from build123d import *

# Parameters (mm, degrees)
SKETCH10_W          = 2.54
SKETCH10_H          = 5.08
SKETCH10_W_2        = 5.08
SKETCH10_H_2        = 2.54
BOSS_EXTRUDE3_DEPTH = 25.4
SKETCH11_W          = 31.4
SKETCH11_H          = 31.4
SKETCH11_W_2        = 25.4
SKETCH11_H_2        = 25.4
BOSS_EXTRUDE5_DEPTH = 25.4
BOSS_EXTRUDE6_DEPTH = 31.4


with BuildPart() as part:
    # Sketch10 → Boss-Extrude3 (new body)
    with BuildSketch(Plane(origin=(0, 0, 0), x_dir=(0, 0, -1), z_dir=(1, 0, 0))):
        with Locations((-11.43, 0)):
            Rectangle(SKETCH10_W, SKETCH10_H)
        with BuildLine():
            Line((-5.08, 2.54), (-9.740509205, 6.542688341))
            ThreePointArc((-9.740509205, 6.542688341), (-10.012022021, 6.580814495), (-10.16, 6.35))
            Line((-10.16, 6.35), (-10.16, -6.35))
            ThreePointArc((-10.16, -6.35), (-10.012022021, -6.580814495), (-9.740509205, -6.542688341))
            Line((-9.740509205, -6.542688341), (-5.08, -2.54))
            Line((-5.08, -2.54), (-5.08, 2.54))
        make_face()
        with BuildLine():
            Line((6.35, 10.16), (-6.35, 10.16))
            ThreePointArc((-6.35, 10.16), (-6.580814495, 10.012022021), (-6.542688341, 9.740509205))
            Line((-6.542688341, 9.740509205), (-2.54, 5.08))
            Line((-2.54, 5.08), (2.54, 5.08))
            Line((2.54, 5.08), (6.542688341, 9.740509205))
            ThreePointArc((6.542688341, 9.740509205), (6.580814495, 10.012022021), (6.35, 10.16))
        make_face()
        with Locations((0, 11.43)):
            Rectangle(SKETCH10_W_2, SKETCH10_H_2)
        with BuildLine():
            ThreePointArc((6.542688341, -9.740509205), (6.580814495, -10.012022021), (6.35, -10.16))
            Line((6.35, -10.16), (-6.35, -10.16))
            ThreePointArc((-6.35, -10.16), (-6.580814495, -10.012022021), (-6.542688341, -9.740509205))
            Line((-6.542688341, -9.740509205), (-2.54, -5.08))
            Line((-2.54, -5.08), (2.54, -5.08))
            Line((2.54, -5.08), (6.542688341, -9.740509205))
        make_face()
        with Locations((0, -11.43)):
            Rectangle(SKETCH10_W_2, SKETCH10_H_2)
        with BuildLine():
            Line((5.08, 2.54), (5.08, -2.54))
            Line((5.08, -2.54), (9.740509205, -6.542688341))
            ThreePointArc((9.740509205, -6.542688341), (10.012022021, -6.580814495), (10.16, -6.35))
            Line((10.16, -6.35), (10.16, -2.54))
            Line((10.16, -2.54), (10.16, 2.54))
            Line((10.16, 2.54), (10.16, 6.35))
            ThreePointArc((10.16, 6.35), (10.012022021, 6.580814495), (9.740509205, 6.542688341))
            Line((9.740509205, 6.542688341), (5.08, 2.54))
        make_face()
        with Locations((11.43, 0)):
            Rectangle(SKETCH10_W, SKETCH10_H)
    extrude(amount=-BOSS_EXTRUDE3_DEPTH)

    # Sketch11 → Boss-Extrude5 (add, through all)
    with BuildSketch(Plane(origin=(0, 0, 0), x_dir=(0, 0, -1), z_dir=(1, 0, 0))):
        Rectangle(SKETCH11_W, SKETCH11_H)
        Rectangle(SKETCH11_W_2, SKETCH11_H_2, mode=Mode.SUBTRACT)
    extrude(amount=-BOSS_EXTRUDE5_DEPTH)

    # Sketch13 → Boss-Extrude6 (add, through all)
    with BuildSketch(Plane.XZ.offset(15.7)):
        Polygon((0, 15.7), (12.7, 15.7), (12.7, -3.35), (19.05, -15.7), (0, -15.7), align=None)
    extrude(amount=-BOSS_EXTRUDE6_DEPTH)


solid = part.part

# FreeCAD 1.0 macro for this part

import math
import FreeCAD as App
import Part
import Sketcher
from FreeCAD import Vector
Q = App.Units.Quantity


def add_polygon(sketch, points):
    """Adds a closed chain of lines whose ends are joined by coincident constraints."""
    first, n = sketch.GeometryCount, len(points)
    for a, b in zip(points, points[1:] + points[:1]):
        sketch.addGeometry(Part.LineSegment(App.Vector(*a, 0), App.Vector(*b, 0)), False)
    for i in range(n):
        sketch.addConstraint(Sketcher.Constraint("Coincident", first + i, 2, first + (i + 1) % n, 1))

doc = App.newDocument("Part")
body = doc.addObject("PartDesign::Body", "Body")
body.AllowCompound = True

sketch1 = body.newObject("Sketcher::SketchObject", "Sketch")
sketch1.AttachmentSupport = (doc.getObject("YZ_Plane"), [""])
sketch1.MapMode = "FlatFace"
sketch1.addGeometry(Part.LineSegment(Vector(2.54, 12.7, 0), Vector(-2.54, 12.7, 0)), False)
sketch1.addGeometry(Part.LineSegment(Vector(-2.54, 12.7, 0), Vector(-2.54, 10.16, 0)), False)
sketch1.addGeometry(Part.LineSegment(Vector(-2.54, 10.16, 0), Vector(-6.35, 10.16, 0)), False)
sketch1.addGeometry(Part.ArcOfCircle(Part.Circle(Vector(-6.35, 9.906, 0), Vector(0, 0, 1), 0.254), math.radians(90), math.radians(220.657704)), False)
sketch1.addGeometry(Part.LineSegment(Vector(-6.542688, 9.740509, 0), Vector(-2.54, 5.08, 0)), False)
sketch1.addGeometry(Part.LineSegment(Vector(-2.54, 5.08, 0), Vector(2.54, 5.08, 0)), False)
sketch1.addGeometry(Part.LineSegment(Vector(2.54, 5.08, 0), Vector(6.542688, 9.740509, 0)), False)
sketch1.addGeometry(Part.ArcOfCircle(Part.Circle(Vector(6.35, 9.906, 0), Vector(0, 0, 1), 0.254), math.radians(-40.657704), math.radians(90)), False)
sketch1.addGeometry(Part.LineSegment(Vector(6.35, 10.16, 0), Vector(2.54, 10.16, 0)), False)
sketch1.addGeometry(Part.LineSegment(Vector(2.54, 10.16, 0), Vector(2.54, 12.7, 0)), False)
sketch1.addGeometry(Part.LineSegment(Vector(10.16, -6.35, 0), Vector(10.16, -2.54, 0)), False)
sketch1.addGeometry(Part.LineSegment(Vector(10.16, -2.54, 0), Vector(12.7, -2.54, 0)), False)
sketch1.addGeometry(Part.LineSegment(Vector(12.7, -2.54, 0), Vector(12.7, 2.54, 0)), False)
sketch1.addGeometry(Part.LineSegment(Vector(12.7, 2.54, 0), Vector(10.16, 2.54, 0)), False)
sketch1.addGeometry(Part.LineSegment(Vector(10.16, 2.54, 0), Vector(10.16, 6.35, 0)), False)
sketch1.addGeometry(Part.ArcOfCircle(Part.Circle(Vector(9.906, 6.35, 0), Vector(0, 0, 1), 0.254), math.radians(0), math.radians(130.657704)), False)
sketch1.addGeometry(Part.LineSegment(Vector(9.740509, 6.542688, 0), Vector(5.08, 2.54, 0)), False)
sketch1.addGeometry(Part.LineSegment(Vector(5.08, 2.54, 0), Vector(5.08, -2.54, 0)), False)
sketch1.addGeometry(Part.LineSegment(Vector(5.08, -2.54, 0), Vector(9.740509, -6.542688, 0)), False)
sketch1.addGeometry(Part.ArcOfCircle(Part.Circle(Vector(9.906, -6.35, 0), Vector(0, 0, 1), 0.254), math.radians(-130.657704), math.radians(0)), False)
sketch1.addGeometry(Part.ArcOfCircle(Part.Circle(Vector(-9.906, -6.35, 0), Vector(0, 0, 1), 0.254), math.radians(180), math.radians(310.657704)), False)
sketch1.addGeometry(Part.LineSegment(Vector(-9.740509, -6.542688, 0), Vector(-5.08, -2.54, 0)), False)
sketch1.addGeometry(Part.LineSegment(Vector(-5.08, -2.54, 0), Vector(-5.08, 2.54, 0)), False)
sketch1.addGeometry(Part.LineSegment(Vector(-5.08, 2.54, 0), Vector(-9.740509, 6.542688, 0)), False)
sketch1.addGeometry(Part.ArcOfCircle(Part.Circle(Vector(-9.906, 6.35, 0), Vector(0, 0, 1), 0.254), math.radians(49.342296), math.radians(180)), False)
sketch1.addGeometry(Part.LineSegment(Vector(-10.16, 6.35, 0), Vector(-10.16, 2.54, 0)), False)
sketch1.addGeometry(Part.LineSegment(Vector(-10.16, 2.54, 0), Vector(-12.7, 2.54, 0)), False)
sketch1.addGeometry(Part.LineSegment(Vector(-12.7, 2.54, 0), Vector(-12.7, -2.54, 0)), False)
sketch1.addGeometry(Part.LineSegment(Vector(-12.7, -2.54, 0), Vector(-10.16, -2.54, 0)), False)
sketch1.addGeometry(Part.LineSegment(Vector(-10.16, -2.54, 0), Vector(-10.16, -6.35, 0)), False)
sketch1.addGeometry(Part.LineSegment(Vector(2.54, -5.08, 0), Vector(-2.54, -5.08, 0)), False)
sketch1.addGeometry(Part.LineSegment(Vector(-2.54, -5.08, 0), Vector(-6.542688, -9.740509, 0)), False)
sketch1.addGeometry(Part.ArcOfCircle(Part.Circle(Vector(-6.35, -9.906, 0), Vector(0, 0, 1), 0.254), math.radians(139.342296), math.radians(270)), False)
sketch1.addGeometry(Part.LineSegment(Vector(-6.35, -10.16, 0), Vector(-2.54, -10.16, 0)), False)
sketch1.addGeometry(Part.LineSegment(Vector(-2.54, -10.16, 0), Vector(-2.54, -12.7, 0)), False)
sketch1.addGeometry(Part.LineSegment(Vector(-2.54, -12.7, 0), Vector(2.54, -12.7, 0)), False)
sketch1.addGeometry(Part.LineSegment(Vector(2.54, -12.7, 0), Vector(2.54, -10.16, 0)), False)
sketch1.addGeometry(Part.LineSegment(Vector(2.54, -10.16, 0), Vector(6.35, -10.16, 0)), False)
sketch1.addGeometry(Part.ArcOfCircle(Part.Circle(Vector(6.35, -9.906, 0), Vector(0, 0, 1), 0.254), math.radians(-90), math.radians(40.657704)), False)
sketch1.addGeometry(Part.LineSegment(Vector(6.542688, -9.740509, 0), Vector(2.54, -5.08, 0)), False)
sketch1.addConstraint(Sketcher.Constraint("Coincident", 0, 2, 1, 1))
sketch1.addConstraint(Sketcher.Constraint("Coincident", 1, 2, 2, 1))
sketch1.addConstraint(Sketcher.Constraint("Tangent", 2, 2, 3, 1))
sketch1.addConstraint(Sketcher.Constraint("Tangent", 3, 2, 4, 1))
sketch1.addConstraint(Sketcher.Constraint("Coincident", 4, 2, 5, 1))
sketch1.addConstraint(Sketcher.Constraint("Coincident", 5, 2, 6, 1))
sketch1.addConstraint(Sketcher.Constraint("Tangent", 6, 2, 7, 1))
sketch1.addConstraint(Sketcher.Constraint("Tangent", 7, 2, 8, 1))
sketch1.addConstraint(Sketcher.Constraint("Coincident", 8, 2, 9, 1))
sketch1.addConstraint(Sketcher.Constraint("Coincident", 9, 2, 0, 1))
sketch1.addConstraint(Sketcher.Constraint("Coincident", 10, 2, 11, 1))
sketch1.addConstraint(Sketcher.Constraint("Coincident", 11, 2, 12, 1))
sketch1.addConstraint(Sketcher.Constraint("Coincident", 12, 2, 13, 1))
sketch1.addConstraint(Sketcher.Constraint("Coincident", 13, 2, 14, 1))
sketch1.addConstraint(Sketcher.Constraint("Tangent", 14, 2, 15, 1))
sketch1.addConstraint(Sketcher.Constraint("Tangent", 15, 2, 16, 1))
sketch1.addConstraint(Sketcher.Constraint("Coincident", 16, 2, 17, 1))
sketch1.addConstraint(Sketcher.Constraint("Coincident", 17, 2, 18, 1))
sketch1.addConstraint(Sketcher.Constraint("Tangent", 18, 2, 19, 1))
sketch1.addConstraint(Sketcher.Constraint("Tangent", 19, 2, 10, 1))
sketch1.addConstraint(Sketcher.Constraint("Tangent", 20, 2, 21, 1))
sketch1.addConstraint(Sketcher.Constraint("Coincident", 21, 2, 22, 1))
sketch1.addConstraint(Sketcher.Constraint("Coincident", 22, 2, 23, 1))
sketch1.addConstraint(Sketcher.Constraint("Tangent", 23, 2, 24, 1))
sketch1.addConstraint(Sketcher.Constraint("Tangent", 24, 2, 25, 1))
sketch1.addConstraint(Sketcher.Constraint("Coincident", 25, 2, 26, 1))
sketch1.addConstraint(Sketcher.Constraint("Coincident", 26, 2, 27, 1))
sketch1.addConstraint(Sketcher.Constraint("Coincident", 27, 2, 28, 1))
sketch1.addConstraint(Sketcher.Constraint("Coincident", 28, 2, 29, 1))
sketch1.addConstraint(Sketcher.Constraint("Tangent", 29, 2, 20, 1))
sketch1.addConstraint(Sketcher.Constraint("Coincident", 30, 2, 31, 1))
sketch1.addConstraint(Sketcher.Constraint("Tangent", 31, 2, 32, 1))
sketch1.addConstraint(Sketcher.Constraint("Tangent", 32, 2, 33, 1))
sketch1.addConstraint(Sketcher.Constraint("Coincident", 33, 2, 34, 1))
sketch1.addConstraint(Sketcher.Constraint("Coincident", 34, 2, 35, 1))
sketch1.addConstraint(Sketcher.Constraint("Coincident", 35, 2, 36, 1))
sketch1.addConstraint(Sketcher.Constraint("Coincident", 36, 2, 37, 1))
sketch1.addConstraint(Sketcher.Constraint("Tangent", 37, 2, 38, 1))
sketch1.addConstraint(Sketcher.Constraint("Tangent", 38, 2, 39, 1))
sketch1.addConstraint(Sketcher.Constraint("Coincident", 39, 2, 30, 1))
sketch1.addConstraint(Sketcher.Constraint("Horizontal", 0))
sketch1.addConstraint(Sketcher.Constraint("Vertical", 1))
sketch1.addConstraint(Sketcher.Constraint("Horizontal", 2))
sketch1.addConstraint(Sketcher.Constraint("Horizontal", 5))
sketch1.addConstraint(Sketcher.Constraint("Horizontal", 8))
sketch1.addConstraint(Sketcher.Constraint("Vertical", 9))
sketch1.addConstraint(Sketcher.Constraint("Vertical", 10))
sketch1.addConstraint(Sketcher.Constraint("Horizontal", 11))
sketch1.addConstraint(Sketcher.Constraint("Vertical", 12))
sketch1.addConstraint(Sketcher.Constraint("Horizontal", 13))
sketch1.addConstraint(Sketcher.Constraint("Vertical", 14))
sketch1.addConstraint(Sketcher.Constraint("Vertical", 17))
sketch1.addConstraint(Sketcher.Constraint("Vertical", 22))
sketch1.addConstraint(Sketcher.Constraint("Vertical", 25))
sketch1.addConstraint(Sketcher.Constraint("Horizontal", 26))
sketch1.addConstraint(Sketcher.Constraint("Vertical", 27))
sketch1.addConstraint(Sketcher.Constraint("Horizontal", 28))
sketch1.addConstraint(Sketcher.Constraint("Vertical", 29))
sketch1.addConstraint(Sketcher.Constraint("Horizontal", 30))
sketch1.addConstraint(Sketcher.Constraint("Horizontal", 33))
sketch1.addConstraint(Sketcher.Constraint("Vertical", 34))
sketch1.addConstraint(Sketcher.Constraint("Horizontal", 35))
sketch1.addConstraint(Sketcher.Constraint("Vertical", 36))
sketch1.addConstraint(Sketcher.Constraint("Horizontal", 37))
sketch1.addConstraint(Sketcher.Constraint("Equal", 3, 7))
sketch1.addConstraint(Sketcher.Constraint("Equal", 7, 15))
sketch1.addConstraint(Sketcher.Constraint("Equal", 15, 19))
sketch1.addConstraint(Sketcher.Constraint("Equal", 19, 20))
sketch1.addConstraint(Sketcher.Constraint("Equal", 20, 24))
sketch1.addConstraint(Sketcher.Constraint("Equal", 24, 32))
sketch1.addConstraint(Sketcher.Constraint("Equal", 32, 38))
sketch1.addConstraint(Sketcher.Constraint("Symmetric", 15, 3, 20, 3, -1, 1))
sketch1.addConstraint(Sketcher.Constraint("Symmetric", 19, 3, 24, 3, -1, 1))
sketch1.addConstraint(Sketcher.Constraint("Symmetric", 7, 3, 32, 3, -1, 1))
sketch1.addConstraint(Sketcher.Constraint("Symmetric", 3, 3, 38, 3, -1, 1))
sketch1.addConstraint(Sketcher.Constraint("Symmetric", 16, 2, 21, 2, -1, 1))
sketch1.addConstraint(Sketcher.Constraint("Symmetric", 11, 2, 26, 2, -1, 1))
sketch1.addConstraint(Sketcher.Constraint("Symmetric", 5, 2, 30, 2, -1, 1))
sketch1.addConstraint(Sketcher.Constraint("Symmetric", 9, 2, 34, 2, -1, 1))
sketch1.addConstraint(Sketcher.Constraint("Symmetric", 3, 3, 7, 3, -2))
sketch1.addConstraint(Sketcher.Constraint("Symmetric", 19, 3, 20, 3, -2))
sketch1.addConstraint(Sketcher.Constraint("Perpendicular", 4, 16))
sketch1.addConstraint(Sketcher.Constraint("Perpendicular", 6, 18))
sketch1.addConstraint(Sketcher.Constraint("Parallel", 18, 23))
sketch1.addConstraint(Sketcher.Constraint("Perpendicular", 21, 39))
sketch1.addConstraint(Sketcher.Constraint("Horizontal", 3, 2, 6, 2))
sketch1.addConstraint(Sketcher.Constraint("Horizontal", 13, 2, 16, 2))
sketch1.addConstraint(Sketcher.Constraint("Horizontal", 11, 2, 17, 2))
sketch1.addConstraint(Sketcher.Constraint("Horizontal", 21, 2, 27, 2))
sketch1.addConstraint(Sketcher.Constraint("Vertical", 1, 2, 4, 2))
sketch1.addConstraint(Sketcher.Constraint("Vertical", 5, 2, 8, 2))
sketch1.addConstraint(Sketcher.Constraint("Vertical", 9, 2, 35, 2))
sketch1.addConstraint(Sketcher.Constraint("Equal", 28, 1))
sketch1.addConstraint(Sketcher.Constraint("Equal", 37, 10))
sketch1.addConstraint(Sketcher.Constraint("Equal", 35, 12))
sketch1.addConstraint(Sketcher.Constraint("Radius", 3, Q("0.01 in")))
sketch1.addConstraint(Sketcher.Constraint("DistanceX", 0, 2, 0, 1, Q("0.2 in")))
sketch1.addConstraint(Sketcher.Constraint("DistanceX", 11, 1, 11, 2, Q("0.1 in")))
sketch1.addConstraint(Sketcher.Constraint("DistanceX", 2, 2, 2, 1, Q("0.15 in")))
sketch1.addConstraint(Sketcher.Constraint("DistanceY", -1, 1, 0, 2, Q("0.5 in")))
sketch1.addConstraint(Sketcher.Constraint("DistanceY", -1, 1, 4, 2, Q("0.2 in")))
sketch1.addConstraint(Sketcher.Constraint("DistanceX", -1, 1, 10, 2, Q("0.4 in")))
pad1 = body.newObject("PartDesign::Pad", "Pad")
pad1.Profile = sketch1
pad1.Length = Q("1 in")
pad1.Reversed = True

sketch2 = body.newObject("Sketcher::SketchObject", "Sketch001")
sketch2.AttachmentSupport = (doc.getObject("YZ_Plane"), [""])
sketch2.MapMode = "FlatFace"
add_polygon(sketch2, [(15.7, 15.7), (-15.7, 15.7), (-15.7, -15.7), (15.7, -15.7)])
add_polygon(sketch2, [(-12.7, -12.7), (-12.7, 12.7), (12.7, 12.7), (12.7, -12.7)])
sketch2.addConstraint(Sketcher.Constraint("Horizontal", 0))
sketch2.addConstraint(Sketcher.Constraint("Vertical", 1))
sketch2.addConstraint(Sketcher.Constraint("Horizontal", 2))
sketch2.addConstraint(Sketcher.Constraint("Vertical", 3))
sketch2.addConstraint(Sketcher.Constraint("Vertical", 4))
sketch2.addConstraint(Sketcher.Constraint("Horizontal", 5))
sketch2.addConstraint(Sketcher.Constraint("Vertical", 6))
sketch2.addConstraint(Sketcher.Constraint("Horizontal", 7))
sketch2.addConstraint(Sketcher.Constraint("Symmetric", 0, 2, 2, 2, -1, 1))
sketch2.addConstraint(Sketcher.Constraint("Symmetric", 4, 2, 6, 2, -1, 1))
sketch2.addConstraint(Sketcher.Constraint("Equal", 2, 1))
sketch2.addConstraint(Sketcher.Constraint("Equal", 7, 4))
sketch2.addConstraint(Sketcher.Constraint("DistanceX", 5, 1, 5, 2, Q("1 in")))
sketch2.addConstraint(Sketcher.Constraint("DistanceX", 0, 2, 0, 1, Q("31.4 mm")))
pad2 = body.newObject("PartDesign::Pad", "Pad001")
pad2.Profile = sketch2
pad2.Length = Q("1 in")
pad2.Reversed = True

sketch3 = body.newObject("Sketcher::SketchObject", "Sketch002")
sketch3.AttachmentSupport = (doc.getObject("XZ_Plane"), [""])
sketch3.MapMode = "FlatFace"
sketch3.AttachmentOffset = App.Placement(Vector(0, 0, 15.7), App.Rotation())
add_polygon(sketch3, [(12.7, 15.7), (0, 15.7), (0, -15.7), (19.05, -15.7), (12.7, -3.35)])
sketch3.addConstraint(Sketcher.Constraint("Horizontal", 0))
sketch3.addConstraint(Sketcher.Constraint("Vertical", 1))
sketch3.addConstraint(Sketcher.Constraint("Horizontal", 2))
sketch3.addConstraint(Sketcher.Constraint("Vertical", 4))
sketch3.addConstraint(Sketcher.Constraint("Symmetric", 0, 2, 1, 2, -1, 1))
sketch3.addConstraint(Sketcher.Constraint("Equal", 2, 4))
sketch3.addConstraint(Sketcher.Constraint("DistanceX", 0, 2, 0, 1, Q("0.5 in")))
sketch3.addConstraint(Sketcher.Constraint("DistanceX", 2, 1, 2, 2, Q("0.75 in")))
sketch3.addConstraint(Sketcher.Constraint("DistanceY", 1, 2, 1, 1, Q("31.4 mm")))
pad3 = body.newObject("PartDesign::Pad", "Pad002")
pad3.Profile = sketch3
pad3.Length = 31.4
pad3.Reversed = True

doc.recompute()
